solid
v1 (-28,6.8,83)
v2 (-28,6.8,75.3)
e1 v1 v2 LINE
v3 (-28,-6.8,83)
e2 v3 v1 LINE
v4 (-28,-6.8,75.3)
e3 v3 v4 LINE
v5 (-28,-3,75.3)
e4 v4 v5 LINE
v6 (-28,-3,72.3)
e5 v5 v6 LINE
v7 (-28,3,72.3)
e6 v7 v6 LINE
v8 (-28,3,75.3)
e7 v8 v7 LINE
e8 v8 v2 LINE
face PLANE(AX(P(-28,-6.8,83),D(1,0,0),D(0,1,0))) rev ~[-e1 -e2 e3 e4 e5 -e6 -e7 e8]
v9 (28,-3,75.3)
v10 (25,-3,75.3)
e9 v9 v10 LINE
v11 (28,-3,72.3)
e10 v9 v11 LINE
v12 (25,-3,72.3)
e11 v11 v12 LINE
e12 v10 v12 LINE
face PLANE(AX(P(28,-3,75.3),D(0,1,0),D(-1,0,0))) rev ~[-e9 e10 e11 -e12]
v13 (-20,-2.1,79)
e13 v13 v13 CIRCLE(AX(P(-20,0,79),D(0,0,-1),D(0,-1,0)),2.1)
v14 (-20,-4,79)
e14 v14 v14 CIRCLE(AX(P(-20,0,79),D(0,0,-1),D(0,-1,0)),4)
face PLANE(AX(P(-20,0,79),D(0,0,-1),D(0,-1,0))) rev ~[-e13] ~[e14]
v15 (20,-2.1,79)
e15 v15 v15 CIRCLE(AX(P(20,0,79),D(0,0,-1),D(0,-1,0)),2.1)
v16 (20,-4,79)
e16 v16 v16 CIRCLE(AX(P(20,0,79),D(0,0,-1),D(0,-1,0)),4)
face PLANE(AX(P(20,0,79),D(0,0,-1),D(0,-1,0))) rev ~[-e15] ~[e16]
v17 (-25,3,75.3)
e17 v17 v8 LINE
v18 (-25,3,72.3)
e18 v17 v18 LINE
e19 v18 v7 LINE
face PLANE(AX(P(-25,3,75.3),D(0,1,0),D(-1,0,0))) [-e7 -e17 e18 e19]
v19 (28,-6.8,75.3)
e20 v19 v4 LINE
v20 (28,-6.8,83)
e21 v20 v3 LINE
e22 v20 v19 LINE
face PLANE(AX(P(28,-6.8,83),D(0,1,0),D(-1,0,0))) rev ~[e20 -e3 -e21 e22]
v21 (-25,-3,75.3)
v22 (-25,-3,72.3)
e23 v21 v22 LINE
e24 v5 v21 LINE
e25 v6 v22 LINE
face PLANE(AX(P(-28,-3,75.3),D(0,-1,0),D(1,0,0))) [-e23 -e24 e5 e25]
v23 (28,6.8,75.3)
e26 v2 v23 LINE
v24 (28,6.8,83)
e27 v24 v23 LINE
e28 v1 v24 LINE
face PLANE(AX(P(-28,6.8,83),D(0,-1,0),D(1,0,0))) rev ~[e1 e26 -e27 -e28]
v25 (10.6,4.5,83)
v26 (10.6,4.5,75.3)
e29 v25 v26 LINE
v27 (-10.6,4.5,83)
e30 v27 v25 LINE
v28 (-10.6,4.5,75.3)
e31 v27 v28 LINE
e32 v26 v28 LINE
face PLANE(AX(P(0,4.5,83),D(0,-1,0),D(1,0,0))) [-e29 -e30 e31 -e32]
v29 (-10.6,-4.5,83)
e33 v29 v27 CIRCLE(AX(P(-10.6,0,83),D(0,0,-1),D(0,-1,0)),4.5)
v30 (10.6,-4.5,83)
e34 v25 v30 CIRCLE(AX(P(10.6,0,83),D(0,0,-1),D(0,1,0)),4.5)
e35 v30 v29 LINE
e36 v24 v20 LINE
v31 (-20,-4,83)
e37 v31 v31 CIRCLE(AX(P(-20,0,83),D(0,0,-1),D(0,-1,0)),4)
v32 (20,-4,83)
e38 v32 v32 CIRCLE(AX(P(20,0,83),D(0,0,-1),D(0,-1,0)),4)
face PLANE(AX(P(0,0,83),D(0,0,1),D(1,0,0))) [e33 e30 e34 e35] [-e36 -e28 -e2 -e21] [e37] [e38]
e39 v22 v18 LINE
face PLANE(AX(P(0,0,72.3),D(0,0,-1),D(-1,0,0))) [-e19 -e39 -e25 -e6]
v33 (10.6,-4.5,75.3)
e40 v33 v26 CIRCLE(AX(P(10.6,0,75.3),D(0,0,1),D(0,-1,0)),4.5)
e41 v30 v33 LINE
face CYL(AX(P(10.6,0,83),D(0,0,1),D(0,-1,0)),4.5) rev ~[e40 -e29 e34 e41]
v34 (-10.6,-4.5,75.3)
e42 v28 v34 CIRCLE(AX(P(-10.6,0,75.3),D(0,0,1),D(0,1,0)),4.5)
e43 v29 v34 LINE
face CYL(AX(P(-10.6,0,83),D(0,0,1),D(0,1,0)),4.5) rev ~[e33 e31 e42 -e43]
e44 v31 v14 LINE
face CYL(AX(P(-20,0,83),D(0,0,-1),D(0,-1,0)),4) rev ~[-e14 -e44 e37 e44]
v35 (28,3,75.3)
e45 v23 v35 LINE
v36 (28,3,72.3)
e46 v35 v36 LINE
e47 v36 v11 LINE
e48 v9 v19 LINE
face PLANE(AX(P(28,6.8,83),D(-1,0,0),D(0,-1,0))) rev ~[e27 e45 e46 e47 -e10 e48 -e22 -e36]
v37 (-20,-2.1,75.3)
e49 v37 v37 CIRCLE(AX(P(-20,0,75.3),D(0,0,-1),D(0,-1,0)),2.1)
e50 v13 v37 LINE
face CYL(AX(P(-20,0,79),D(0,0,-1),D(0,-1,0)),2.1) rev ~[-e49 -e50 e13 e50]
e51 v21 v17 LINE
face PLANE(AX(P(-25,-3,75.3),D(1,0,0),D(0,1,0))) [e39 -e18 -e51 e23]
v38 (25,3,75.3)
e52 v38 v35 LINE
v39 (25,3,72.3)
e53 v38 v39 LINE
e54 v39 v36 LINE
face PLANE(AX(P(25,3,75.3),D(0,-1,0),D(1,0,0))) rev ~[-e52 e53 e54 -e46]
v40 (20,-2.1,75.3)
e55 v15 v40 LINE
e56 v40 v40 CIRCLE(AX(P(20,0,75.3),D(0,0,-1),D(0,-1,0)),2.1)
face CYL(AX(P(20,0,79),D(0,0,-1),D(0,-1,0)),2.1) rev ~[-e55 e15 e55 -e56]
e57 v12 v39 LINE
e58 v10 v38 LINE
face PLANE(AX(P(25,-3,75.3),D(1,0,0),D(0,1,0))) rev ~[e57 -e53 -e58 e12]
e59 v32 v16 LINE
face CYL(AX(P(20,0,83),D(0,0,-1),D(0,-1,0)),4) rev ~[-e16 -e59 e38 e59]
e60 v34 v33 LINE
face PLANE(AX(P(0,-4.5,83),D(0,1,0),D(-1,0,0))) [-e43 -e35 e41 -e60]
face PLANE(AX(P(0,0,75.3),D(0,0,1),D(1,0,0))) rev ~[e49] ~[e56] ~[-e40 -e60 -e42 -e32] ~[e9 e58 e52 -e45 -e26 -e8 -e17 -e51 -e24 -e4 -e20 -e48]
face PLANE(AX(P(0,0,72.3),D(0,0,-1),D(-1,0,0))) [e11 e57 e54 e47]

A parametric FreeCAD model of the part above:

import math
import FreeCAD as App
import Part
import Sketcher


def add_polygon(sketch, points):
    """Adds a closed chain of lines whose ends are joined by coincident constraints."""
    first, n = sketch.GeometryCount, len(points)
    for a, b in zip(points, points[1:] + points[:1]):
        sketch.addGeometry(Part.LineSegment(App.Vector(*a, 0), App.Vector(*b, 0)), False)
    for i in range(n):
        sketch.addConstraint(Sketcher.Constraint("Coincident", first + i, 2, first + (i + 1) % n, 1))

doc = App.newDocument("Part")
params = doc.addObject("Spreadsheet::Sheet", "Params")
for row, (alias, value) in enumerate([
    ("sketch1_radius", "4.5 mm"),
    ("sketch1_width", "56 mm"),
    ("sketch1_height", "13.6 mm"),
    ("sketch1_width2", "21.2 mm"),
    ("pad1_length", "7.7 mm"),
    ("sketch2_diameter", "4.2 mm"),
    ("hole_diameter", "4.2 mm"),
    ("hole_depth", "7.7 mm"),
    ("hole_cbore_diameter", "8 mm"),
    ("hole_cbore_depth", "4 mm"),
    ("sketch3_width", "3 mm"),
    ("sketch3_height", "6 mm"),
    ("pad2_length", "3 mm"),
], start=1):
    params.set(f"A{row}", alias)
    params.set(f"B{row}", "=" + value)
    params.setAlias(f"B{row}", alias)

body = doc.addObject("PartDesign::Body", "Body")

sketch1 = body.newObject("Sketcher::SketchObject", "Sketch")
sketch1.AttachmentSupport = (doc.getObject("XY_Plane"), [""])
sketch1.MapMode = "FlatFace"
sketch1.AttachmentOffset = App.Placement(App.Vector(0, 0, 83), App.Rotation())
add_polygon(sketch1, [(28, 6.8), (-28, 6.8), (-28, -6.8), (28, -6.8)])
sketch1.addGeometry(Part.ArcOfCircle(Part.Circle(App.Vector(-10.6, 0, 0), App.Vector(0, 0, 1), 4.5), math.radians(90), math.radians(270)), False)
sketch1.addGeometry(Part.LineSegment(App.Vector(-10.6, 4.5, 0), App.Vector(10.6, 4.5, 0)), False)
sketch1.addGeometry(Part.ArcOfCircle(Part.Circle(App.Vector(10.6, 0, 0), App.Vector(0, 0, 1), 4.5), math.radians(-90), math.radians(90)), False)
sketch1.addGeometry(Part.LineSegment(App.Vector(10.6, -4.5, 0), App.Vector(-10.6, -4.5, 0)), False)
sketch1.addConstraint([
    Sketcher.Constraint("Tangent", 4, 1, 5, 1),
    Sketcher.Constraint("Tangent", 5, 2, 6, 2),
    Sketcher.Constraint("Tangent", 6, 1, 7, 1),
    Sketcher.Constraint("Tangent", 7, 2, 4, 2),
    Sketcher.Constraint("Horizontal", 0),
    Sketcher.Constraint("Vertical", 1),
    Sketcher.Constraint("Horizontal", 2),
    Sketcher.Constraint("Vertical", 3),
    Sketcher.Constraint("Horizontal", 5),
    Sketcher.Constraint("Horizontal", 7),
    Sketcher.Constraint("Symmetric", 4, 3, 6, 3, -1, 1),
    Sketcher.Constraint("Symmetric", 0, 2, 2, 2, -1, 1),
    Sketcher.Constraint("Radius", 4, 4.5),
    Sketcher.Constraint("DistanceX", 0, 2, 0, 1, 56.0),
    Sketcher.Constraint("DistanceY", 1, 2, 1, 1, 13.6),
    Sketcher.Constraint("DistanceX", 5, 1, 5, 2, 21.2),
])
sketch1.setExpression("Constraints[16]", "Params.sketch1_radius")
sketch1.setExpression("Constraints[17]", "Params.sketch1_width")
sketch1.setExpression("Constraints[18]", "Params.sketch1_height")
sketch1.setExpression("Constraints[19]", "Params.sketch1_width2")
pad1 = body.newObject("PartDesign::Pad", "Pad")
pad1.Profile = sketch1
pad1.setExpression("Length", "Params.pad1_length")
pad1.Reversed = True

sketch2 = body.newObject("Sketcher::SketchObject", "Sketch001")
sketch2.AttachmentSupport = (doc.getObject("XY_Plane"), [""])
sketch2.MapMode = "FlatFace"
sketch2.AttachmentOffset = App.Placement(App.Vector(0, 0, 83), App.Rotation())
sketch2.addGeometry([
    Part.Circle(App.Vector(20, 0, 0), App.Vector(0, 0, 1), 2.1),
    Part.Circle(App.Vector(-20, 0, 0), App.Vector(0, 0, 1), 2.1),
], False)
sketch2.addConstraint([
    Sketcher.Constraint("Equal", 0, 1),
    Sketcher.Constraint("Symmetric", 0, 3, 1, 3, -1, 1),
    Sketcher.Constraint("PointOnObject", 0, 3, -1),
    Sketcher.Constraint("Diameter", 0, 4.2),
    Sketcher.Constraint("DistanceX", -1, 1, 0, 3, 20.0),
])
sketch2.setExpression("Constraints[3]", "Params.sketch2_diameter")
doc.recompute()
hole = body.newObject("PartDesign::Hole", "Hole")
hole.Profile = sketch2
hole.ThreadType = "None"
hole.setExpression("Diameter", "Params.hole_diameter")
hole.DepthType = "Dimension"
hole.setExpression("Depth", "Params.hole_depth")
hole.DrillPoint = "Flat"
hole.HoleCutType = "Counterbore"
hole.setExpression("HoleCutDiameter", "Params.hole_cbore_diameter")
hole.setExpression("HoleCutDepth", "Params.hole_cbore_depth")

sketch3 = body.newObject("Sketcher::SketchObject", "Sketch002")
sketch3.AttachmentSupport = (doc.getObject("XY_Plane"), [""])
sketch3.MapMode = "FlatFace"
sketch3.AttachmentOffset = App.Placement(App.Vector(0, 0, 75.3), App.Rotation())
add_polygon(sketch3, [(-25, -3), (-28, -3), (-28, 3), (-25, 3)])
add_polygon(sketch3, [(28, 3), (28, -3), (25, -3), (25, 3)])
sketch3.addConstraint([
    Sketcher.Constraint("Horizontal", 0),
    Sketcher.Constraint("Vertical", 1),
    Sketcher.Constraint("Horizontal", 2),
    Sketcher.Constraint("Vertical", 3),
    Sketcher.Constraint("Vertical", 4),
    Sketcher.Constraint("Horizontal", 5),
    Sketcher.Constraint("Vertical", 6),
    Sketcher.Constraint("Horizontal", 7),
    Sketcher.Constraint("Symmetric", 1, 2, 4, 2, -1, 1),
    Sketcher.Constraint("Symmetric", 3, 2, 6, 2, -1, 1),
    Sketcher.Constraint("Horizontal", 3, 2, 4, 2),
    Sketcher.Constraint("DistanceX", 0, 2, 0, 1, 3.0),
    Sketcher.Constraint("DistanceY", 1, 1, 1, 2, 6.0),
    Sketcher.Constraint("DistanceX", 0, 2, -1, 1, 28.0),
])
sketch3.setExpression("Constraints[19]", "Params.sketch3_width")
sketch3.setExpression("Constraints[20]", "Params.sketch3_height")
pad2 = body.newObject("PartDesign::Pad", "Pad001")
pad2.Profile = sketch3
pad2.setExpression("Length", "Params.pad2_length")
pad2.Reversed = True

doc.recompute()
